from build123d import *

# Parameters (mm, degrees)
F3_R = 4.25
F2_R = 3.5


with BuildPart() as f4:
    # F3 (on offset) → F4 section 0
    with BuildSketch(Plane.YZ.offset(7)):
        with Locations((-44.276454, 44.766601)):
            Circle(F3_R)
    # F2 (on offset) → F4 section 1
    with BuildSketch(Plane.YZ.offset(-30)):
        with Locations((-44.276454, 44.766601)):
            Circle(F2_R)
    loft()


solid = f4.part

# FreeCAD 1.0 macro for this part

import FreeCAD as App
import Part
import Sketcher
from FreeCAD import Vector

doc = App.newDocument("Part")
body = doc.addObject("PartDesign::Body", "Body")

sketch1 = body.newObject("Sketcher::SketchObject", "Sketch")
sketch1.AttachmentSupport = (doc.getObject("YZ_Plane"), [""])
sketch1.MapMode = "FlatFace"
sketch1.AttachmentOffset = App.Placement(Vector(0, 0, 7), App.Rotation())
sketch1.addGeometry(Part.Circle(Vector(-44.3, 44.8, 0), Vector(0, 0, 1), 4.2), False)
sketch1.addConstraint([
    Sketcher.Constraint("Diameter", 0, 8.5),
    Sketcher.Constraint("DistanceY", -1, 1, 0, 3, 44.766601),
    Sketcher.Constraint("DistanceX", 0, 3, -1, 1, 44.276454),
])

sketch2 = body.newObject("Sketcher::SketchObject", "Sketch001")
sketch2.AttachmentSupport = (doc.getObject("YZ_Plane"), [""])
sketch2.MapMode = "FlatFace"
sketch2.AttachmentOffset = App.Placement(Vector(0, 0, -30), App.Rotation())
sketch2.addGeometry(Part.Circle(Vector(-44.3, 44.8, 0), Vector(0, 0, 1), 3.5), False)
sketch2.addConstraint([
    Sketcher.Constraint("Diameter", 0, 7.0),
    Sketcher.Constraint("DistanceY", -1, 1, 0, 3, 44.766601),
    Sketcher.Constraint("DistanceX", 0, 3, -1, 1, 44.276454),
])

additiveloft = body.newObject("PartDesign::AdditiveLoft", "AdditiveLoft")
additiveloft.Profile = sketch1
additiveloft.Sections = [sketch2]

doc.recompute()
